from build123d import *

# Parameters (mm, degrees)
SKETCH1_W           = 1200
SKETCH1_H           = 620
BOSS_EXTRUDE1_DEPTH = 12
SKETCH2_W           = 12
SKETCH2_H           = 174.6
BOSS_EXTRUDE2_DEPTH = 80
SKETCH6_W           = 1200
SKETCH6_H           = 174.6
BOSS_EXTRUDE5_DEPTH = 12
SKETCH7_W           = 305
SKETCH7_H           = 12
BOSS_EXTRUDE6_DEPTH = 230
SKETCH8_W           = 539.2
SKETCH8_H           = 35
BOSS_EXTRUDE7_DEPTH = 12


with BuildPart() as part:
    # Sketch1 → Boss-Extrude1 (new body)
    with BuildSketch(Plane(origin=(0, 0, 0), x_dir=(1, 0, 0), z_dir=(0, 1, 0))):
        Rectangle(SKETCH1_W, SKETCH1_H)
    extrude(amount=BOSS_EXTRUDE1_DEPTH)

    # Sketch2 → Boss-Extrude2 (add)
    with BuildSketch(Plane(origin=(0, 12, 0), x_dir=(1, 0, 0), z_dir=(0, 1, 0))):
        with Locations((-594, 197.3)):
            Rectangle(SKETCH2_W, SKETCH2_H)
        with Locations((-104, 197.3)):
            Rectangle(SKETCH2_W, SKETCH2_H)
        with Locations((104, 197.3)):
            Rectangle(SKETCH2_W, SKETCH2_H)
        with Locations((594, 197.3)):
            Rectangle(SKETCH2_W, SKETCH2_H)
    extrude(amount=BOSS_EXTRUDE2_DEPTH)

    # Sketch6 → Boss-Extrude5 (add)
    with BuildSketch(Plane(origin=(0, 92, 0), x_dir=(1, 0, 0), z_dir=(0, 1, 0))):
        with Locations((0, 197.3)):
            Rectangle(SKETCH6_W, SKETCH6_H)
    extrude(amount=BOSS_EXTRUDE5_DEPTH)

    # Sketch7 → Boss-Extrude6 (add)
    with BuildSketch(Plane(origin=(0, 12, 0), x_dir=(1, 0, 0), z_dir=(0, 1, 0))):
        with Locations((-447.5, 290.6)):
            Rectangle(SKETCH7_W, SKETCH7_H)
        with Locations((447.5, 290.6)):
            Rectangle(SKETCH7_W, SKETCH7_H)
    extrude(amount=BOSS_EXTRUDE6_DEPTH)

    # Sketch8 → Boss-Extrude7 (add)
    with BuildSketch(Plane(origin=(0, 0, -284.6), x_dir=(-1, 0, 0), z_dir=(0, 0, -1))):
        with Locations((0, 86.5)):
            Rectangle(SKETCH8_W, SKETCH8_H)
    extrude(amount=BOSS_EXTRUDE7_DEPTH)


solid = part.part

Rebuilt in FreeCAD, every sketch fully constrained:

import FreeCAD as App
import Part
import Sketcher

doc = App.newDocument("Part")
body = doc.addObject("PartDesign::Body", "Body")

# Sketch on XZ plane
sketch1 = doc.addObject("Sketcher::SketchObject", "Sketch")
body.addObject(sketch1)
sketch1.AttachmentSupport = (doc.XZ_Plane, [""])
sketch1.MapMode = "FlatFace"
sketch1.addGeometry(Part.LineSegment(App.Vector(-600, -310, 0), App.Vector(-600, 310, 0)), False)
sketch1.addGeometry(Part.LineSegment(App.Vector(-600, 310, 0), App.Vector(600, 310, 0)), False)
sketch1.addGeometry(Part.LineSegment(App.Vector(600, 310, 0), App.Vector(600, -310, 0)), False)
sketch1.addGeometry(Part.LineSegment(App.Vector(600, -310, 0), App.Vector(-600, -310, 0)), False)
sketch1.addConstraint(Sketcher.Constraint("Coincident", 0, 2, 1, 1))
sketch1.addConstraint(Sketcher.Constraint("Coincident", 1, 2, 2, 1))
sketch1.addConstraint(Sketcher.Constraint("Coincident", 2, 2, 3, 1))
sketch1.addConstraint(Sketcher.Constraint("Coincident", 3, 2, 0, 1))
sketch1.addConstraint(Sketcher.Constraint("Vertical", 0))
sketch1.addConstraint(Sketcher.Constraint("Horizontal", 1))
sketch1.addConstraint(Sketcher.Constraint("Vertical", 2))
sketch1.addConstraint(Sketcher.Constraint("Horizontal", 3))
sketch1.addConstraint(Sketcher.Constraint("Symmetric", 0, 2, 2, 2, -1, 1))
sketch1.addConstraint(Sketcher.Constraint("DistanceX", 1, 1, 1, 2, 1200.0))
sketch1.addConstraint(Sketcher.Constraint("DistanceY", 0, 1, 0, 2, 620.0))
pad1 = doc.addObject("PartDesign::Pad", "Pad")
body.addObject(pad1)
pad1.Profile = sketch1
pad1.Length = 12
pad1.Reversed = True

# Sketch on XZ plane
sketch2 = doc.addObject("Sketcher::SketchObject", "Sketch001")
body.addObject(sketch2)
sketch2.AttachmentSupport = (doc.XZ_Plane, [""])
sketch2.MapMode = "FlatFace"
sketch2.AttachmentOffset = App.Placement(App.Vector(0, 0, -12), App.Rotation())
sketch2.addGeometry(Part.LineSegment(App.Vector(-600, -285, 0), App.Vector(-600, -110, 0)), False)
sketch2.addGeometry(Part.LineSegment(App.Vector(-600, -110, 0), App.Vector(-588, -110, 0)), False)
sketch2.addGeometry(Part.LineSegment(App.Vector(-588, -110, 0), App.Vector(-588, -285, 0)), False)
sketch2.addGeometry(Part.LineSegment(App.Vector(-588, -285, 0), App.Vector(-600, -285, 0)), False)
sketch2.addGeometry(Part.LineSegment(App.Vector(-110, -285, 0), App.Vector(-110, -110, 0)), False)
sketch2.addGeometry(Part.LineSegment(App.Vector(-110, -110, 0), App.Vector(-98, -110, 0)), False)
sketch2.addGeometry(Part.LineSegment(App.Vector(-98, -110, 0), App.Vector(-98, -285, 0)), False)
sketch2.addGeometry(Part.LineSegment(App.Vector(-98, -285, 0), App.Vector(-110, -285, 0)), False)
sketch2.addGeometry(Part.LineSegment(App.Vector(98, -285, 0), App.Vector(98, -110, 0)), False)
sketch2.addGeometry(Part.LineSegment(App.Vector(98, -110, 0), App.Vector(110, -110, 0)), False)
sketch2.addGeometry(Part.LineSegment(App.Vector(110, -110, 0), App.Vector(110, -285, 0)), False)
sketch2.addGeometry(Part.LineSegment(App.Vector(110, -285, 0), App.Vector(98, -285, 0)), False)
sketch2.addGeometry(Part.LineSegment(App.Vector(588, -285, 0), App.Vector(588, -110, 0)), False)
sketch2.addGeometry(Part.LineSegment(App.Vector(588, -110, 0), App.Vector(600, -110, 0)), False)
sketch2.addGeometry(Part.LineSegment(App.Vector(600, -110, 0), App.Vector(600, -285, 0)), False)
sketch2.addGeometry(Part.LineSegment(App.Vector(600, -285, 0), App.Vector(588, -285, 0)), False)
sketch2.addConstraint(Sketcher.Constraint("Coincident", 0, 2, 1, 1))
sketch2.addConstraint(Sketcher.Constraint("Coincident", 1, 2, 2, 1))
sketch2.addConstraint(Sketcher.Constraint("Coincident", 2, 2, 3, 1))
sketch2.addConstraint(Sketcher.Constraint("Coincident", 3, 2, 0, 1))
sketch2.addConstraint(Sketcher.Constraint("Coincident", 4, 2, 5, 1))
sketch2.addConstraint(Sketcher.Constraint("Coincident", 5, 2, 6, 1))
sketch2.addConstraint(Sketcher.Constraint("Coincident", 6, 2, 7, 1))
sketch2.addConstraint(Sketcher.Constraint("Coincident", 7, 2, 4, 1))
sketch2.addConstraint(Sketcher.Constraint("Coincident", 8, 2, 9, 1))
sketch2.addConstraint(Sketcher.Constraint("Coincident", 9, 2, 10, 1))
sketch2.addConstraint(Sketcher.Constraint("Coincident", 10, 2, 11, 1))
sketch2.addConstraint(Sketcher.Constraint("Coincident", 11, 2, 8, 1))
sketch2.addConstraint(Sketcher.Constraint("Coincident", 12, 2, 13, 1))
sketch2.addConstraint(Sketcher.Constraint("Coincident", 13, 2, 14, 1))
sketch2.addConstraint(Sketcher.Constraint("Coincident", 14, 2, 15, 1))
sketch2.addConstraint(Sketcher.Constraint("Coincident", 15, 2, 12, 1))
sketch2.addConstraint(Sketcher.Constraint("Vertical", 0))
sketch2.addConstraint(Sketcher.Constraint("Horizontal", 1))
sketch2.addConstraint(Sketcher.Constraint("Vertical", 2))
sketch2.addConstraint(Sketcher.Constraint("Horizontal", 3))
sketch2.addConstraint(Sketcher.Constraint("Vertical", 4))
sketch2.addConstraint(Sketcher.Constraint("Horizontal", 5))
sketch2.addConstraint(Sketcher.Constraint("Vertical", 6))
sketch2.addConstraint(Sketcher.Constraint("Horizontal", 7))
sketch2.addConstraint(Sketcher.Constraint("Vertical", 8))
sketch2.addConstraint(Sketcher.Constraint("Horizontal", 9))
sketch2.addConstraint(Sketcher.Constraint("Vertical", 10))
sketch2.addConstraint(Sketcher.Constraint("Horizontal", 11))
sketch2.addConstraint(Sketcher.Constraint("Vertical", 12))
sketch2.addConstraint(Sketcher.Constraint("Horizontal", 13))
sketch2.addConstraint(Sketcher.Constraint("Vertical", 14))
sketch2.addConstraint(Sketcher.Constraint("Horizontal", 15))
sketch2.addConstraint(Sketcher.Constraint("Symmetric", 5, 2, 8, 2, -2))
sketch2.addConstraint(Sketcher.Constraint("Symmetric", 7, 2, 10, 2, -2))
sketch2.addConstraint(Sketcher.Constraint("Symmetric", 1, 2, 12, 2, -2))
sketch2.addConstraint(Sketcher.Constraint("Symmetric", 3, 2, 14, 2, -2))
sketch2.addConstraint(Sketcher.Constraint("Horizontal", 1, 2, 4, 2))
sketch2.addConstraint(Sketcher.Constraint("Horizontal", 3, 2, 6, 2))
sketch2.addConstraint(Sketcher.Constraint("Equal", 3, 5))
sketch2.addConstraint(Sketcher.Constraint("DistanceX", 1, 1, 1, 2, 12.0))
sketch2.addConstraint(Sketcher.Constraint("DistanceY", 0, 1, 0, 2, 174.6))
sketch2.addConstraint(Sketcher.Constraint("DistanceX", 0, 2, -1, 1, 600.0))
sketch2.addConstraint(Sketcher.Constraint("DistanceY", 0, 2, -1, 1, 110.0))
sketch2.addConstraint(Sketcher.Constraint("DistanceX", 4, 2, -1, 1, 110.0))
pad2 = doc.addObject("PartDesign::Pad", "Pad001")
body.addObject(pad2)
pad2.Profile = sketch2
pad2.Length = 80
pad2.Reversed = True

# Sketch on XZ plane
sketch3 = doc.addObject("Sketcher::SketchObject", "Sketch002")
body.addObject(sketch3)
sketch3.AttachmentSupport = (doc.XZ_Plane, [""])
sketch3.MapMode = "FlatFace"
sketch3.AttachmentOffset = App.Placement(App.Vector(0, 0, -92), App.Rotation())
sketch3.addGeometry(Part.LineSegment(App.Vector(-600, -285, 0), App.Vector(-600, -110, 0)), False)
sketch3.addGeometry(Part.LineSegment(App.Vector(-600, -110, 0), App.Vector(600, -110, 0)), False)
sketch3.addGeometry(Part.LineSegment(App.Vector(600, -110, 0), App.Vector(600, -285, 0)), False)
sketch3.addGeometry(Part.LineSegment(App.Vector(600, -285, 0), App.Vector(-600, -285, 0)), False)
sketch3.addConstraint(Sketcher.Constraint("Coincident", 0, 2, 1, 1))
sketch3.addConstraint(Sketcher.Constraint("Coincident", 1, 2, 2, 1))
sketch3.addConstraint(Sketcher.Constraint("Coincident", 2, 2, 3, 1))
sketch3.addConstraint(Sketcher.Constraint("Coincident", 3, 2, 0, 1))
sketch3.addConstraint(Sketcher.Constraint("Vertical", 0))
sketch3.addConstraint(Sketcher.Constraint("Horizontal", 1))
sketch3.addConstraint(Sketcher.Constraint("Vertical", 2))
sketch3.addConstraint(Sketcher.Constraint("Horizontal", 3))
sketch3.addConstraint(Sketcher.Constraint("DistanceX", 1, 1, 1, 2, 1200.0))
sketch3.addConstraint(Sketcher.Constraint("DistanceY", 0, 1, 0, 2, 174.6))
sketch3.addConstraint(Sketcher.Constraint("DistanceX", 0, 2, -1, 1, 600.0))
sketch3.addConstraint(Sketcher.Constraint("DistanceY", 0, 2, -1, 1, 110.0))
pad3 = doc.addObject("PartDesign::Pad", "Pad002")
body.addObject(pad3)
pad3.Profile = sketch3
pad3.Length = 12
pad3.Reversed = True

# Sketch on XZ plane
sketch4 = doc.addObject("Sketcher::SketchObject", "Sketch003")
body.addObject(sketch4)
sketch4.AttachmentSupport = (doc.XZ_Plane, [""])
sketch4.MapMode = "FlatFace"
sketch4.AttachmentOffset = App.Placement(App.Vector(0, 0, -12), App.Rotation())
sketch4.addGeometry(Part.LineSegment(App.Vector(-600, -297, 0), App.Vector(-600, -285, 0)), False)
sketch4.addGeometry(Part.LineSegment(App.Vector(-600, -285, 0), App.Vector(-295, -285, 0)), False)
sketch4.addGeometry(Part.LineSegment(App.Vector(-295, -285, 0), App.Vector(-295, -297, 0)), False)
sketch4.addGeometry(Part.LineSegment(App.Vector(-295, -297, 0), App.Vector(-600, -297, 0)), False)
sketch4.addGeometry(Part.LineSegment(App.Vector(295, -297, 0), App.Vector(295, -285, 0)), False)
sketch4.addGeometry(Part.LineSegment(App.Vector(295, -285, 0), App.Vector(600, -285, 0)), False)
sketch4.addGeometry(Part.LineSegment(App.Vector(600, -285, 0), App.Vector(600, -297, 0)), False)
sketch4.addGeometry(Part.LineSegment(App.Vector(600, -297, 0), App.Vector(295, -297, 0)), False)
sketch4.addConstraint(Sketcher.Constraint("Coincident", 0, 2, 1, 1))
sketch4.addConstraint(Sketcher.Constraint("Coincident", 1, 2, 2, 1))
sketch4.addConstraint(Sketcher.Constraint("Coincident", 2, 2, 3, 1))
sketch4.addConstraint(Sketcher.Constraint("Coincident", 3, 2, 0, 1))
sketch4.addConstraint(Sketcher.Constraint("Coincident", 4, 2, 5, 1))
sketch4.addConstraint(Sketcher.Constraint("Coincident", 5, 2, 6, 1))
sketch4.addConstraint(Sketcher.Constraint("Coincident", 6, 2, 7, 1))
sketch4.addConstraint(Sketcher.Constraint("Coincident", 7, 2, 4, 1))
sketch4.addConstraint(Sketcher.Constraint("Vertical", 0))
sketch4.addConstraint(Sketcher.Constraint("Horizontal", 1))
sketch4.addConstraint(Sketcher.Constraint("Vertical", 2))
sketch4.addConstraint(Sketcher.Constraint("Horizontal", 3))
sketch4.addConstraint(Sketcher.Constraint("Vertical", 4))
sketch4.addConstraint(Sketcher.Constraint("Horizontal", 5))
sketch4.addConstraint(Sketcher.Constraint("Vertical", 6))
sketch4.addConstraint(Sketcher.Constraint("Horizontal", 7))
sketch4.addConstraint(Sketcher.Constraint("Symmetric", 1, 2, 4, 2, -2))
sketch4.addConstraint(Sketcher.Constraint("Symmetric", 3, 2, 6, 2, -2))
sketch4.addConstraint(Sketcher.Constraint("DistanceX", 1, 1, 1, 2, 305.0))
sketch4.addConstraint(Sketcher.Constraint("DistanceY", 0, 1, 0, 2, 12.0))
sketch4.addConstraint(Sketcher.Constraint("DistanceX", 0, 2, -1, 1, 600.0))
sketch4.addConstraint(Sketcher.Constraint("DistanceY", 0, 2, -1, 1, 284.6))
pad4 = doc.addObject("PartDesign::Pad", "Pad003")
body.addObject(pad4)
pad4.Profile = sketch4
pad4.Length = 230
pad4.Reversed = True

# Sketch on XY plane
sketch5 = doc.addObject("Sketcher::SketchObject", "Sketch004")
body.addObject(sketch5)
sketch5.AttachmentSupport = (doc.XY_Plane, [""])
sketch5.MapMode = "FlatFace"
sketch5.AttachmentOffset = App.Placement(App.Vector(0, 0, -284.6), App.Rotation())
sketch5.addGeometry(Part.LineSegment(App.Vector(270, 104, 0), App.Vector(270, 69, 0)), False)
sketch5.addGeometry(Part.LineSegment(App.Vector(270, 69, 0), App.Vector(-270, 69, 0)), False)
sketch5.addGeometry(Part.LineSegment(App.Vector(-270, 69, 0), App.Vector(-270, 104, 0)), False)
sketch5.addGeometry(Part.LineSegment(App.Vector(-270, 104, 0), App.Vector(270, 104, 0)), False)
sketch5.addConstraint(Sketcher.Constraint("Coincident", 0, 2, 1, 1))
sketch5.addConstraint(Sketcher.Constraint("Coincident", 1, 2, 2, 1))
sketch5.addConstraint(Sketcher.Constraint("Coincident", 2, 2, 3, 1))
sketch5.addConstraint(Sketcher.Constraint("Coincident", 3, 2, 0, 1))
sketch5.addConstraint(Sketcher.Constraint("Vertical", 0))
sketch5.addConstraint(Sketcher.Constraint("Horizontal", 1))
sketch5.addConstraint(Sketcher.Constraint("Vertical", 2))
sketch5.addConstraint(Sketcher.Constraint("Horizontal", 3))
sketch5.addConstraint(Sketcher.Constraint("DistanceY", 0, 2, 0, 1, 35.0))
sketch5.addConstraint(Sketcher.Constraint("DistanceX", 1, 2, 1, 1, 539.2))
sketch5.addConstraint(Sketcher.Constraint("DistanceY", -1, 1, 0, 2, 69.0))
sketch5.addConstraint(Sketcher.Constraint("DistanceX", -1, 1, 0, 2, 269.6))
pad5 = doc.addObject("PartDesign::Pad", "Pad004")
body.addObject(pad5)
pad5.Profile = sketch5
pad5.Length = 12
pad5.Reversed = True

doc.recompute()
